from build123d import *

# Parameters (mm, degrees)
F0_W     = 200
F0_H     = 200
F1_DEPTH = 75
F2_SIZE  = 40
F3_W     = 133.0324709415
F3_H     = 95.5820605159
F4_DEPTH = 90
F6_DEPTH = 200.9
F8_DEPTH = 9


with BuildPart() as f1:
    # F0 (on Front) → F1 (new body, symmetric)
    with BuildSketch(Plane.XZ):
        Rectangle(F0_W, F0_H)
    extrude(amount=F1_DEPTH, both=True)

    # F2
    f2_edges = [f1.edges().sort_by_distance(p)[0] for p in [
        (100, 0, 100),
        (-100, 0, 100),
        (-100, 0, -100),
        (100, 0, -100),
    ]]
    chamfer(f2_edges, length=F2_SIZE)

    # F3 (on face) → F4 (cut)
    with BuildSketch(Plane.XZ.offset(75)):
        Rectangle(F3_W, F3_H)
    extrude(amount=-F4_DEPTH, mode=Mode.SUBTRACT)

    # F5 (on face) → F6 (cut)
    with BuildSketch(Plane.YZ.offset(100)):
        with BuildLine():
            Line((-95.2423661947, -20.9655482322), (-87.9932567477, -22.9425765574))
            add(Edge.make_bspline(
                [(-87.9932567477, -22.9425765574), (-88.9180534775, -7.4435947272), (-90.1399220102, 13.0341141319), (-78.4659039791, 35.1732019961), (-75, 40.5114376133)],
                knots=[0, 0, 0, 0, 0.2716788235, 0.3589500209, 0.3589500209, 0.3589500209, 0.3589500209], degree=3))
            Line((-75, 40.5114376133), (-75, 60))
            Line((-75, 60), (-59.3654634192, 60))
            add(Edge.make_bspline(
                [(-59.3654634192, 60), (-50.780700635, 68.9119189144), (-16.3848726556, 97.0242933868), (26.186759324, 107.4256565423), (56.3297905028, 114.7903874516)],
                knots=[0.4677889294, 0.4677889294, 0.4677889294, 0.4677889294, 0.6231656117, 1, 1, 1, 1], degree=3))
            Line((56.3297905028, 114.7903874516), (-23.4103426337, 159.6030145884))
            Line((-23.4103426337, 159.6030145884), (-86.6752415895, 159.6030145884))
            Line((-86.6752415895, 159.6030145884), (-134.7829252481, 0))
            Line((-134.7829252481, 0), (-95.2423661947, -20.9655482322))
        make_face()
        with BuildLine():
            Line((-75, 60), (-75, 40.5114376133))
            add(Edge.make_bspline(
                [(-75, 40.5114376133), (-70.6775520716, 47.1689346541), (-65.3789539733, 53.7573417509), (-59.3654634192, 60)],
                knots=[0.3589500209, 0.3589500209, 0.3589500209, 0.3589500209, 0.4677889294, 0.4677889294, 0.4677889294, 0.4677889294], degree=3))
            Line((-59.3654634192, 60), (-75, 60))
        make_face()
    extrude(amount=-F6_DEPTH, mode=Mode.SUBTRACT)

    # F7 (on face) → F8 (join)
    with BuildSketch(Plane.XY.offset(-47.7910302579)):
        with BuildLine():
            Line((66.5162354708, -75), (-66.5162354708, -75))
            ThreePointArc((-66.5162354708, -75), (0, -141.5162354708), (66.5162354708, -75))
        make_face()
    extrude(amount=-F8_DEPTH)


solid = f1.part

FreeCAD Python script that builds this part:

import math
import FreeCAD as App
import Part
import Sketcher
from FreeCAD import Vector


def edges_at(feature, points):
    """Names of the edges that pass closest to the given points."""
    edges = feature.Shape.Edges
    near = lambda p: min(range(len(edges)), key=lambda i: edges[i].distToShape(Part.Vertex(*p))[0])
    return sorted({f"Edge{near(p) + 1}" for p in points})

doc = App.newDocument("Part")
body = doc.addObject("PartDesign::Body", "Body")

sketch1 = body.newObject("Sketcher::SketchObject", "Sketch")
sketch1.AttachmentSupport = (doc.getObject("XZ_Plane"), [""])
sketch1.MapMode = "FlatFace"
sketch1.addGeometry(Part.LineSegment(Vector(-100, 100, 0), Vector(-100, -100, 0)), False)
sketch1.addGeometry(Part.LineSegment(Vector(-100, -100, 0), Vector(100, -100, 0)), False)
sketch1.addGeometry(Part.LineSegment(Vector(100, -100, 0), Vector(100, 100, 0)), False)
sketch1.addGeometry(Part.LineSegment(Vector(100, 100, 0), Vector(-100, 100, 0)), False)
sketch1.addConstraint(Sketcher.Constraint("Coincident", 0, 2, 1, 1))
sketch1.addConstraint(Sketcher.Constraint("Coincident", 1, 2, 2, 1))
sketch1.addConstraint(Sketcher.Constraint("Coincident", 2, 2, 3, 1))
sketch1.addConstraint(Sketcher.Constraint("Coincident", 3, 2, 0, 1))
sketch1.addConstraint(Sketcher.Constraint("Vertical", 0))
sketch1.addConstraint(Sketcher.Constraint("Horizontal", 1))
sketch1.addConstraint(Sketcher.Constraint("Vertical", 2))
sketch1.addConstraint(Sketcher.Constraint("Horizontal", 3))
sketch1.addConstraint(Sketcher.Constraint("Symmetric", 0, 2, 2, 2, -1, 1))
sketch1.addConstraint(Sketcher.Constraint("Equal", 3, 0))
sketch1.addConstraint(Sketcher.Constraint("DistanceX", 1, 1, 1, 2, 200.0))
pad1 = body.newObject("PartDesign::Pad", "Pad")
pad1.Profile = sketch1
pad1.Length = 150
pad1.Midplane = True
doc.recompute()

chamfer = body.newObject("PartDesign::Chamfer", "Chamfer")
chamfer.Base = (pad1, edges_at(pad1, [
    (100, 0, 100),
    (-100, 0, 100),
    (-100, 0, -100),
    (100, 0, -100),
]))
chamfer.Size = 40

sketch2 = body.newObject("Sketcher::SketchObject", "Sketch001")
sketch2.AttachmentSupport = (doc.getObject("XZ_Plane"), [""])
sketch2.MapMode = "FlatFace"
sketch2.AttachmentOffset = App.Placement(Vector(0, 0, 75), App.Rotation())
sketch2.addGeometry(Part.LineSegment(Vector(-67, 48, 0), Vector(-67, -48, 0)), False)
sketch2.addGeometry(Part.LineSegment(Vector(-67, -48, 0), Vector(67, -48, 0)), False)
sketch2.addGeometry(Part.LineSegment(Vector(67, -48, 0), Vector(67, 48, 0)), False)
sketch2.addGeometry(Part.LineSegment(Vector(67, 48, 0), Vector(-67, 48, 0)), False)
sketch2.addConstraint(Sketcher.Constraint("Coincident", 0, 2, 1, 1))
sketch2.addConstraint(Sketcher.Constraint("Coincident", 1, 2, 2, 1))
sketch2.addConstraint(Sketcher.Constraint("Coincident", 2, 2, 3, 1))
sketch2.addConstraint(Sketcher.Constraint("Coincident", 3, 2, 0, 1))
sketch2.addConstraint(Sketcher.Constraint("Vertical", 0))
sketch2.addConstraint(Sketcher.Constraint("Horizontal", 1))
sketch2.addConstraint(Sketcher.Constraint("Vertical", 2))
sketch2.addConstraint(Sketcher.Constraint("Horizontal", 3))
sketch2.addConstraint(Sketcher.Constraint("Symmetric", 0, 2, 2, 2, -1, 1))
sketch2.addConstraint(Sketcher.Constraint("DistanceX", 1, 1, 1, 2, 133.032471))
sketch2.addConstraint(Sketcher.Constraint("DistanceY", 0, 2, 0, 1, 95.582061))
pocket1 = body.newObject("PartDesign::Pocket", "Pocket")
pocket1.Profile = sketch2
pocket1.Length = 90

sketch3 = body.newObject("Sketcher::SketchObject", "Sketch002")
sketch3.AttachmentSupport = (doc.getObject("YZ_Plane"), [""])
sketch3.MapMode = "FlatFace"
sketch3.AttachmentOffset = App.Placement(Vector(0, 0, 100), App.Rotation())
sketch3.addGeometry(Part.LineSegment(Vector(-95.242366, -20.965548, 0), Vector(-87.993257, -22.942577, 0)), False)
sketch3.addGeometry(Part.BSplineCurve([Vector(-87.993257, -22.942577, 0), Vector(-88.918053, -7.443595, 0), Vector(-90.139922, 13.034114, 0), Vector(-78.465904, 35.173202, 0), Vector(-75, 40.511438, 0)], [4, 1, 4], [0, 0.271678823, 0.358950021], False, 3, [1, 1, 1, 1, 1], False), False)
sketch3.addGeometry(Part.BSplineCurve([Vector(-75, 40.511438, 0), Vector(-70.677552, 47.168935, 0), Vector(-65.378954, 53.757342, 0), Vector(-59.365463, 60, 0)], [4, 4], [0.358950021, 0.467788929], False, 3, [1, 1, 1, 1], False), False)
sketch3.addGeometry(Part.BSplineCurve([Vector(-59.365463, 60, 0), Vector(-50.780701, 68.911919, 0), Vector(-16.384873, 97.024293, 0), Vector(26.186759, 107.425657, 0), Vector(56.329791, 114.790387, 0)], [4, 1, 4], [0.467788929, 0.623165612, 1], False, 3, [1, 1, 1, 1, 1], False), False)
sketch3.addGeometry(Part.LineSegment(Vector(56.329791, 114.790387, 0), Vector(-23.410343, 159.603015, 0)), False)
sketch3.addGeometry(Part.LineSegment(Vector(-23.410343, 159.603015, 0), Vector(-86.675242, 159.603015, 0)), False)
sketch3.addGeometry(Part.LineSegment(Vector(-86.675242, 159.603015, 0), Vector(-134.782925, 0, 0)), False)
sketch3.addGeometry(Part.LineSegment(Vector(-134.782925, 0, 0), Vector(-95.242366, -20.965548, 0)), False)
sketch3.addConstraint(Sketcher.Constraint("Block", 1))
sketch3.addConstraint(Sketcher.Constraint("Block", 2))
sketch3.addConstraint(Sketcher.Constraint("Block", 3))
sketch3.addConstraint(Sketcher.Constraint("Coincident", 0, 2, 1, 1))
sketch3.addConstraint(Sketcher.Constraint("Coincident", 3, 2, 4, 1))
sketch3.addConstraint(Sketcher.Constraint("Coincident", 4, 2, 5, 1))
sketch3.addConstraint(Sketcher.Constraint("Coincident", 5, 2, 6, 1))
sketch3.addConstraint(Sketcher.Constraint("Coincident", 6, 2, 7, 1))
sketch3.addConstraint(Sketcher.Constraint("Coincident", 7, 2, 0, 1))
sketch3.addConstraint(Sketcher.Constraint("Horizontal", 5))
sketch3.addConstraint(Sketcher.Constraint("PointOnObject", 6, 2, -1))
sketch3.addConstraint(Sketcher.Constraint("Distance", 7, 44.755))
sketch3.addConstraint(Sketcher.Constraint("DistanceX", 5, 2, 5, 1, 63.264899))
sketch3.addConstraint(Sketcher.Constraint("Distance", 0, 7.513869))
sketch3.addConstraint(Sketcher.Constraint("Distance", 4, 91.469451))
sketch3.addConstraint(Sketcher.Constraint("DistanceX", 5, 2, -1, 1, 86.675242))
sketch3.addConstraint(Sketcher.Constraint("DistanceY", 7, 2, -1, 1, 20.965548))
pocket2 = body.newObject("PartDesign::Pocket", "Pocket001")
pocket2.Profile = sketch3
pocket2.Length = 200.9

sketch4 = body.newObject("Sketcher::SketchObject", "Sketch003")
sketch4.AttachmentSupport = (doc.getObject("XY_Plane"), [""])
sketch4.MapMode = "FlatFace"
sketch4.AttachmentOffset = App.Placement(Vector(0, 0, -47.79103), App.Rotation())
sketch4.addGeometry(Part.LineSegment(Vector(67, -75, 0), Vector(-67, -75, 0)), False)
sketch4.addGeometry(Part.ArcOfCircle(Part.Circle(Vector(0, -75, 0), Vector(0, 0, 1), 67), math.radians(180), math.radians(360)), False)
sketch4.addConstraint(Sketcher.Constraint("Coincident", 0, 1, 1, 2))
sketch4.addConstraint(Sketcher.Constraint("Coincident", 1, 1, 0, 2))
sketch4.addConstraint(Sketcher.Constraint("Horizontal", 0))
sketch4.addConstraint(Sketcher.Constraint("PointOnObject", 1, 3, -2))
sketch4.addConstraint(Sketcher.Constraint("Horizontal", 1, 3, 0, 1))
sketch4.addConstraint(Sketcher.Constraint("DistanceY", 1, 3, -1, 1, 75.0))
sketch4.addConstraint(Sketcher.Constraint("Radius", 1, 66.516235))
pad2 = body.newObject("PartDesign::Pad", "Pad001")
pad2.Profile = sketch4
pad2.Length = 9
pad2.Reversed = True

doc.recompute()
